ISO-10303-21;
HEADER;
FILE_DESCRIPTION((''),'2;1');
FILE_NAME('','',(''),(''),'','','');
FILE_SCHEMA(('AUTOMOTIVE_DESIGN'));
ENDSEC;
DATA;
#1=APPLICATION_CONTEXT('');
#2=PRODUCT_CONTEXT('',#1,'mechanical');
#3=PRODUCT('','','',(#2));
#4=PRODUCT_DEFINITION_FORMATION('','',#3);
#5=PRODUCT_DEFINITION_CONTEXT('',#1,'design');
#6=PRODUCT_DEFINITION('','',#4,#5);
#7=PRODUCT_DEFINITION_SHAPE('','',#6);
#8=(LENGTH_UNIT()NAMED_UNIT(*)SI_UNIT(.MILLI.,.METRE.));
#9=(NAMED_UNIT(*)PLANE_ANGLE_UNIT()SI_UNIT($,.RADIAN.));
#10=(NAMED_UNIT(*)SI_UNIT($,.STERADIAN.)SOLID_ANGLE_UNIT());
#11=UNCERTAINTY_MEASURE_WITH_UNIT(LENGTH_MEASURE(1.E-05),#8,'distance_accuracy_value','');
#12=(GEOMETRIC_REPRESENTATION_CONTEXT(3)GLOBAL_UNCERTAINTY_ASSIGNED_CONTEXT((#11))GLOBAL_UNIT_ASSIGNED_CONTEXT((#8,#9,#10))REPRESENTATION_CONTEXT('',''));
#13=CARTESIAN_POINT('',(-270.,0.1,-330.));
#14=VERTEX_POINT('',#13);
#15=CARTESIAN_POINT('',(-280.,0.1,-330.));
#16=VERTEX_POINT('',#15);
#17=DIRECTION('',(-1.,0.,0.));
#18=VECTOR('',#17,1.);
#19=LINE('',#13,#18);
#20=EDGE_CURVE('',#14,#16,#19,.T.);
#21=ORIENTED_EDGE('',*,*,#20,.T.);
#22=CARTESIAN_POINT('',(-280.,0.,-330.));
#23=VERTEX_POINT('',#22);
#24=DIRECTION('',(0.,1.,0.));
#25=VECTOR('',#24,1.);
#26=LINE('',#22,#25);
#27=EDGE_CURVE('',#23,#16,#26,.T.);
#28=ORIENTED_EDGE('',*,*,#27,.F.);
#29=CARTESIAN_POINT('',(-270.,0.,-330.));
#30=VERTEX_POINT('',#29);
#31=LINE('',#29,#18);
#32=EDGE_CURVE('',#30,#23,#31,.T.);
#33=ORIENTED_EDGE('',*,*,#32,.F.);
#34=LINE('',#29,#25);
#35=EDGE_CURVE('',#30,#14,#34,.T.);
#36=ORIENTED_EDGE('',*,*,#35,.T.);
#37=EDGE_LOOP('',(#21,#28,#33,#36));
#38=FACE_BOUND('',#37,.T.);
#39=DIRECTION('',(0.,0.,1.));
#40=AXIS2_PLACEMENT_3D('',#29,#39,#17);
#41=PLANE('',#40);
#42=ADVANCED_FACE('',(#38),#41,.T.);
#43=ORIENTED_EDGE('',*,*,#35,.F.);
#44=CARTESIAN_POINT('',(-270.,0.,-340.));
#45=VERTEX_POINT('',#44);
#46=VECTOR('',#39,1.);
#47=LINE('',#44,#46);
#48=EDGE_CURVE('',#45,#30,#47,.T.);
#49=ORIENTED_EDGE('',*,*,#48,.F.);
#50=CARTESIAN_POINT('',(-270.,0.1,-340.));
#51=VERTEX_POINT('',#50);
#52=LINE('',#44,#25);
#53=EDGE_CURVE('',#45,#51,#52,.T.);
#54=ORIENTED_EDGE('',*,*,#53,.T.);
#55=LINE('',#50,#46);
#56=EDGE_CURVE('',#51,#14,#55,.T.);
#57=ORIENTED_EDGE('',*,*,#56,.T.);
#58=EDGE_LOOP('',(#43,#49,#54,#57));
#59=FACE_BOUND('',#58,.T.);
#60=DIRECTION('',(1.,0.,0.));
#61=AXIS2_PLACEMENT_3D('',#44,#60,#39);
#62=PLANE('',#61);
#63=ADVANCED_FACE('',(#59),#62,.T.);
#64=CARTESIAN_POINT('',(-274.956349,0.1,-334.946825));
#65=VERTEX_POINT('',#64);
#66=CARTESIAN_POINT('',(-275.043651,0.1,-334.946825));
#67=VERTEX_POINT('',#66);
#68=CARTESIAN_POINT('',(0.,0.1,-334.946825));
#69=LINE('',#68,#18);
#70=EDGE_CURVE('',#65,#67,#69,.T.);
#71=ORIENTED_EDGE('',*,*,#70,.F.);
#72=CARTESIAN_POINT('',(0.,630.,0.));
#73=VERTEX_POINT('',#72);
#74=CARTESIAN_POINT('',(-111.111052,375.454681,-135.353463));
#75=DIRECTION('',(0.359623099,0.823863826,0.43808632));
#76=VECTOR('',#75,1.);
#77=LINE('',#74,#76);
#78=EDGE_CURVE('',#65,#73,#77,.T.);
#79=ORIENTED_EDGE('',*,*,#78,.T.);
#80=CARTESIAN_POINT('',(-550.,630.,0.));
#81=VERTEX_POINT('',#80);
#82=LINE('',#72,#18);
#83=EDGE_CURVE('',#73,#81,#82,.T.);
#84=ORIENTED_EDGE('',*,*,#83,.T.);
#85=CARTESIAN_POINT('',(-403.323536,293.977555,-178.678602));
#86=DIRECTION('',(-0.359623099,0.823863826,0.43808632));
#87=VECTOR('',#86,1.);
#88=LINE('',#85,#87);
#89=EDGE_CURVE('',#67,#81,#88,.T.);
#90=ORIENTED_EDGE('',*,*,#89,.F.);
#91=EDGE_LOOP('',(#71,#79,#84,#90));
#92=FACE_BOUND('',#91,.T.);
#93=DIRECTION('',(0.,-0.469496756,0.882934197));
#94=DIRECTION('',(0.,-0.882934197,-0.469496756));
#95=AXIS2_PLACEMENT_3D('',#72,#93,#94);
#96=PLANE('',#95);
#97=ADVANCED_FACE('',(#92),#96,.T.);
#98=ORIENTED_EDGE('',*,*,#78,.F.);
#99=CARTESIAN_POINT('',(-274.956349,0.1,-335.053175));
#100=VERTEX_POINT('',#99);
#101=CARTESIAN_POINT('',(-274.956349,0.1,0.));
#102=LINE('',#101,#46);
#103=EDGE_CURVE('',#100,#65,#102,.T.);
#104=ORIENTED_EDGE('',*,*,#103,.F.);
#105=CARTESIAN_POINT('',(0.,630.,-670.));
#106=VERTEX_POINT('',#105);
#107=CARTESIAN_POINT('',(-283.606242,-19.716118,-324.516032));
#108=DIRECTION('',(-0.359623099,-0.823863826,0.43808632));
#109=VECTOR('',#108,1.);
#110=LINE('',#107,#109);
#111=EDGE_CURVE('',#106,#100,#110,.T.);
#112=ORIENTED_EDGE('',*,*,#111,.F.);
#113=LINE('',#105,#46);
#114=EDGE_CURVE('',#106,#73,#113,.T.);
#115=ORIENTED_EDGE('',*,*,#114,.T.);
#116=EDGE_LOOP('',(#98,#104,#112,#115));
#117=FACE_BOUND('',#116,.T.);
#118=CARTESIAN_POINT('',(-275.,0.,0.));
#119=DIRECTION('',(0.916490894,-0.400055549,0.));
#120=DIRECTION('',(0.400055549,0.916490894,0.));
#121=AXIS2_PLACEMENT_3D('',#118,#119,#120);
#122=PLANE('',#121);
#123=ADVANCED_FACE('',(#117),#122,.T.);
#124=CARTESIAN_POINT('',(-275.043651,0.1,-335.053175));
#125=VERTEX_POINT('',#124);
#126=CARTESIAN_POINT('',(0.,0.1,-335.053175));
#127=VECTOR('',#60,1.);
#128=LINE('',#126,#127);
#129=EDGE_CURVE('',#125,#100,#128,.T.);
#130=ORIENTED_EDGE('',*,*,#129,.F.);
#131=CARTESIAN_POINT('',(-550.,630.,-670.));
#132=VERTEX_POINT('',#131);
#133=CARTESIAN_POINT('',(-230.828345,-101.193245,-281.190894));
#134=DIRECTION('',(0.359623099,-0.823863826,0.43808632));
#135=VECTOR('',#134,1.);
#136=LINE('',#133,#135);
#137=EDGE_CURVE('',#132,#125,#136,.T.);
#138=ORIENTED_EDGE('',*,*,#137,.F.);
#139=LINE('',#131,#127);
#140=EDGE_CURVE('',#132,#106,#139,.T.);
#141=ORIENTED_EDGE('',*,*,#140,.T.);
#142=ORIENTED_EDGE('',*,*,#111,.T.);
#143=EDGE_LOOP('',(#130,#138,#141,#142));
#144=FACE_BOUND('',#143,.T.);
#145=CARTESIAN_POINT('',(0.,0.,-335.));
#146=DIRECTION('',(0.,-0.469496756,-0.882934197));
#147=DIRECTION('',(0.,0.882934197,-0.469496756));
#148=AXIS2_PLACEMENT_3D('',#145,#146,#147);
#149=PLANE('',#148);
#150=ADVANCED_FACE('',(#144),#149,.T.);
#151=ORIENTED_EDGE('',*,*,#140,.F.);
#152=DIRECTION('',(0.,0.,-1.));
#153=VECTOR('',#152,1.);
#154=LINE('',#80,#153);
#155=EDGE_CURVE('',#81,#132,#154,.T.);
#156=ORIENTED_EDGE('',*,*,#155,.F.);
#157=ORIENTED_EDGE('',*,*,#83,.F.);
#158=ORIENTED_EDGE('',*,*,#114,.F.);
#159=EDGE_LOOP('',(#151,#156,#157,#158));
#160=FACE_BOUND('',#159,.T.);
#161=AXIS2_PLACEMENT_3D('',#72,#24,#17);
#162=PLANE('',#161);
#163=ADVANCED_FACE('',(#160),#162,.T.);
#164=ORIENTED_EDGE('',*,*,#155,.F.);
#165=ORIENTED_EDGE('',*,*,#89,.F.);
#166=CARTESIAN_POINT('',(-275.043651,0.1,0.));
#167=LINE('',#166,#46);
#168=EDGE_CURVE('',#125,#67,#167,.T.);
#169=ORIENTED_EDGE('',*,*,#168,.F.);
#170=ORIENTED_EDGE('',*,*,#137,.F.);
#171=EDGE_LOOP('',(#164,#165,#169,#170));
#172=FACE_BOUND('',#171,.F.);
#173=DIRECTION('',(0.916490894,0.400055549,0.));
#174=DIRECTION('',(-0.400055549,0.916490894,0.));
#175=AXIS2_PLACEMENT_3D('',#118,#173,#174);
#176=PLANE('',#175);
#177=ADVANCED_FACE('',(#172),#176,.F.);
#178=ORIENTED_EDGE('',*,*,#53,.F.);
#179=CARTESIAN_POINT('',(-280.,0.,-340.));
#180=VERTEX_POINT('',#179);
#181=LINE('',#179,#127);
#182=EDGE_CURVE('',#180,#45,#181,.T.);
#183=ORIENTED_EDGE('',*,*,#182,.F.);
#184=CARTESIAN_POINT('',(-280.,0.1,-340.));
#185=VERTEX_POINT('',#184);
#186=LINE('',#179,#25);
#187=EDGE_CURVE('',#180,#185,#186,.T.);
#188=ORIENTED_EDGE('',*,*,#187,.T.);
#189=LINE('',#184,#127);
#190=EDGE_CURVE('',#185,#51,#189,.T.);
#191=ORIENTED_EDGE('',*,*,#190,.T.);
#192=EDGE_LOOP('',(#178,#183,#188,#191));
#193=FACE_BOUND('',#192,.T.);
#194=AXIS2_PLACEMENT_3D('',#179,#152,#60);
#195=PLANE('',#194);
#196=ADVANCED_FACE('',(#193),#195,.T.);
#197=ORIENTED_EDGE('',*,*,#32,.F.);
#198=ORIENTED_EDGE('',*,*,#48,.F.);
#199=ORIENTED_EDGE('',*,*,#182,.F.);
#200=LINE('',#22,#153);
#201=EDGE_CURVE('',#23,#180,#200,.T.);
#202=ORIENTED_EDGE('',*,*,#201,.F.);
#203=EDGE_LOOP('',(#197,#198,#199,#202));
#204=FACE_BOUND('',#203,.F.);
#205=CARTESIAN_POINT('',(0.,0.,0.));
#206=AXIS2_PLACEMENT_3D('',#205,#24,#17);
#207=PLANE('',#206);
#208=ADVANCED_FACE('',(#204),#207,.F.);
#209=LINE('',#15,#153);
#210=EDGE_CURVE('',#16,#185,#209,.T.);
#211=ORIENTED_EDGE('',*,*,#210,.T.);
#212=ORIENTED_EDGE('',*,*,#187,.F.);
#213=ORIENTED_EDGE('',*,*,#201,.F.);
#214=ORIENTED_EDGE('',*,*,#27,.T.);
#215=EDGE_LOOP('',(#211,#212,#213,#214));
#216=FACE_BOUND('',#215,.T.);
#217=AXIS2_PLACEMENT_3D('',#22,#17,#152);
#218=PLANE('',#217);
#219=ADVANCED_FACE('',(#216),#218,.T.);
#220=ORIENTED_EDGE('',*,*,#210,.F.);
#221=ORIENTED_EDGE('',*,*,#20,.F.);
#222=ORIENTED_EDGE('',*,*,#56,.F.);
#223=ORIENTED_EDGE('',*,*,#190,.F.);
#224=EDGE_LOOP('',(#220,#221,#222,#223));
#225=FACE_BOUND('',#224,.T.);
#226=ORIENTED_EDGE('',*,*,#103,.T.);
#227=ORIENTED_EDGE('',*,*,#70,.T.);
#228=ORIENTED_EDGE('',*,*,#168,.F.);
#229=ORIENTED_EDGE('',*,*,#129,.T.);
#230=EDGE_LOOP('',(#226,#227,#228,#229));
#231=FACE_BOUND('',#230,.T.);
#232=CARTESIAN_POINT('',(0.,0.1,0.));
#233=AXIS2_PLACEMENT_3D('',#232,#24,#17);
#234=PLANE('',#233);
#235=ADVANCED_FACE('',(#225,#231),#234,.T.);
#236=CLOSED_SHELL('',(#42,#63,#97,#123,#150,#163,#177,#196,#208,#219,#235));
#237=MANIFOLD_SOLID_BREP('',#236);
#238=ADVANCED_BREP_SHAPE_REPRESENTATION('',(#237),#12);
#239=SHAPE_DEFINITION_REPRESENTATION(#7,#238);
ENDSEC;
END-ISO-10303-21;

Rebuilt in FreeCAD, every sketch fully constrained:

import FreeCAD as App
import Part
import Sketcher
from FreeCAD import Vector
Q = App.Units.Quantity

doc = App.newDocument("Part")
params = doc.addObject("Spreadsheet::Sheet", "Params")
for row, (alias, value) in enumerate([
    ("sketch1_width", "550 mm"),
    ("sketch1_height", "670 mm"),
    ("pad1_length", "630 mm"),
    ("sketch2_width", "630 mm"),
    ("sketch2_height", "335 mm"),
    ("sketch3_width", "630 mm"),
    ("sketch3_height", "335 mm"),
    ("sketch4_width", "275 mm"),
    ("sketch4_height", "630 mm"),
    ("sketch5_width", "275 mm"),
    ("sketch5_height", "630 mm"),
    ("sketch6_width", "10 mm"),
    ("pad2_length", "0.1 mm"),
], start=1):
    params.set(f"A{row}", alias)
    params.set(f"B{row}", "=" + value)
    params.setAlias(f"B{row}", alias)

body = doc.addObject("PartDesign::Body", "Body")

sketch1 = doc.addObject("Sketcher::SketchObject", "Sketch")
body.addObject(sketch1)
sketch1.AttachmentSupport = (doc.XZ_Plane, [""])
sketch1.MapMode = "FlatFace"
sketch1.addGeometry(Part.LineSegment(Vector(-550, 0, 0), Vector(0, 0, 0)), False)
sketch1.addGeometry(Part.LineSegment(Vector(0, 0, 0), Vector(0, -670, 0)), False)
sketch1.addGeometry(Part.LineSegment(Vector(0, -670, 0), Vector(-550, -670, 0)), False)
sketch1.addGeometry(Part.LineSegment(Vector(-550, -670, 0), Vector(-550, 0, 0)), False)
sketch1.addConstraint(Sketcher.Constraint("Coincident", 0, 2, 1, 1))
sketch1.addConstraint(Sketcher.Constraint("Coincident", 1, 2, 2, 1))
sketch1.addConstraint(Sketcher.Constraint("Coincident", 2, 2, 3, 1))
sketch1.addConstraint(Sketcher.Constraint("Coincident", 3, 2, 0, 1))
sketch1.addConstraint(Sketcher.Constraint("Horizontal", 0))
sketch1.addConstraint(Sketcher.Constraint("Vertical", 1))
sketch1.addConstraint(Sketcher.Constraint("Horizontal", 2))
sketch1.addConstraint(Sketcher.Constraint("Vertical", 3))
sketch1.addConstraint(Sketcher.Constraint("Coincident", 0, 2, -1, 1))
sketch1.addConstraint(Sketcher.Constraint("DistanceX", 0, 1, 0, 2, Q("550 mm")))
sketch1.addConstraint(Sketcher.Constraint("DistanceY", 1, 2, 1, 1, Q("670 mm")))
sketch1.setExpression("Constraints[9]", "Params.sketch1_width")
sketch1.setExpression("Constraints[10]", "Params.sketch1_height")
pad1 = doc.addObject("PartDesign::Pad", "Pad")
body.addObject(pad1)
pad1.Profile = sketch1
pad1.setExpression("Length", "Params.pad1_length")
pad1.Reversed = True

sketch2 = doc.addObject("Sketcher::SketchObject", "Sketch001")
body.addObject(sketch2)
sketch2.AttachmentSupport = (doc.YZ_Plane, [""])
sketch2.MapMode = "FlatFace"
sketch2.addGeometry(Part.LineSegment(Vector(0, -335, 0), Vector(630, 0, 0)), False)
sketch2.addGeometry(Part.LineSegment(Vector(630, 0, 0), Vector(0, 0, 0)), False)
sketch2.addGeometry(Part.LineSegment(Vector(0, 0, 0), Vector(0, -335, 0)), False)
sketch2.addConstraint(Sketcher.Constraint("Coincident", 0, 2, 1, 1))
sketch2.addConstraint(Sketcher.Constraint("Coincident", 1, 2, 2, 1))
sketch2.addConstraint(Sketcher.Constraint("Coincident", 2, 2, 0, 1))
sketch2.addConstraint(Sketcher.Constraint("Horizontal", 1))
sketch2.addConstraint(Sketcher.Constraint("Vertical", 2))
sketch2.addConstraint(Sketcher.Constraint("Coincident", 1, 2, -1, 1))
sketch2.addConstraint(Sketcher.Constraint("DistanceX", 1, 2, 1, 1, Q("630 mm")))
sketch2.addConstraint(Sketcher.Constraint("DistanceY", 2, 2, 2, 1, Q("335 mm")))
sketch2.setExpression("Constraints[6]", "Params.sketch2_width")
sketch2.setExpression("Constraints[7]", "Params.sketch2_height")
pocket1 = doc.addObject("PartDesign::Pocket", "Pocket")
body.addObject(pocket1)
pocket1.Profile = sketch2
pocket1.Type = "ThroughAll"

sketch3 = doc.addObject("Sketcher::SketchObject", "Sketch002")
body.addObject(sketch3)
sketch3.AttachmentSupport = (doc.YZ_Plane, [""])
sketch3.MapMode = "FlatFace"
sketch3.addGeometry(Part.LineSegment(Vector(630, -670, 0), Vector(0, -335, 0)), False)
sketch3.addGeometry(Part.LineSegment(Vector(0, -335, 0), Vector(0, -670, 0)), False)
sketch3.addGeometry(Part.LineSegment(Vector(0, -670, 0), Vector(630, -670, 0)), False)
sketch3.addConstraint(Sketcher.Constraint("Coincident", 0, 2, 1, 1))
sketch3.addConstraint(Sketcher.Constraint("Coincident", 1, 2, 2, 1))
sketch3.addConstraint(Sketcher.Constraint("Coincident", 2, 2, 0, 1))
sketch3.addConstraint(Sketcher.Constraint("Vertical", 1))
sketch3.addConstraint(Sketcher.Constraint("Horizontal", 2))
sketch3.addConstraint(Sketcher.Constraint("PointOnObject", 0, 2, -2))
sketch3.addConstraint(Sketcher.Constraint("DistanceX", 2, 1, 2, 2, Q("630 mm")))
sketch3.addConstraint(Sketcher.Constraint("DistanceY", 1, 2, 1, 1, Q("335 mm")))
sketch3.addConstraint(Sketcher.Constraint("DistanceY", 0, 2, -1, 1, Q("335 mm")))
sketch3.setExpression("Constraints[6]", "Params.sketch3_width")
sketch3.setExpression("Constraints[7]", "Params.sketch3_height")
pocket2 = doc.addObject("PartDesign::Pocket", "Pocket001")
body.addObject(pocket2)
pocket2.Profile = sketch3
pocket2.Type = "ThroughAll"

sketch4 = doc.addObject("Sketcher::SketchObject", "Sketch003")
body.addObject(sketch4)
sketch4.AttachmentSupport = (doc.XY_Plane, [""])
sketch4.MapMode = "FlatFace"
sketch4.addGeometry(Part.LineSegment(Vector(-550, 630, 0), Vector(-550, 0, 0)), False)
sketch4.addGeometry(Part.LineSegment(Vector(-550, 0, 0), Vector(-275, 0, 0)), False)
sketch4.addGeometry(Part.LineSegment(Vector(-275, 0, 0), Vector(-550, 630, 0)), False)
sketch4.addConstraint(Sketcher.Constraint("Coincident", 0, 2, 1, 1))
sketch4.addConstraint(Sketcher.Constraint("Coincident", 1, 2, 2, 1))
sketch4.addConstraint(Sketcher.Constraint("Coincident", 2, 2, 0, 1))
sketch4.addConstraint(Sketcher.Constraint("Vertical", 0))
sketch4.addConstraint(Sketcher.Constraint("Horizontal", 1))
sketch4.addConstraint(Sketcher.Constraint("PointOnObject", 0, 2, -1))
sketch4.addConstraint(Sketcher.Constraint("DistanceX", 1, 1, 1, 2, Q("275 mm")))
sketch4.addConstraint(Sketcher.Constraint("DistanceX", 1, 2, -1, 1, Q("275 mm")))
sketch4.addConstraint(Sketcher.Constraint("DistanceY", 0, 2, 0, 1, Q("630 mm")))
sketch4.setExpression("Constraints[6]", "Params.sketch4_width")
sketch4.setExpression("Constraints[8]", "Params.sketch4_height")
pocket3 = doc.addObject("PartDesign::Pocket", "Pocket002")
body.addObject(pocket3)
pocket3.Profile = sketch4
pocket3.Type = "ThroughAll"

sketch5 = doc.addObject("Sketcher::SketchObject", "Sketch004")
body.addObject(sketch5)
sketch5.AttachmentSupport = (doc.XY_Plane, [""])
sketch5.MapMode = "FlatFace"
sketch5.addGeometry(Part.LineSegment(Vector(-275, 0, 0), Vector(0, 0, 0)), False)
sketch5.addGeometry(Part.LineSegment(Vector(0, 0, 0), Vector(0, 630, 0)), False)
sketch5.addGeometry(Part.LineSegment(Vector(0, 630, 0), Vector(-275, 0, 0)), False)
sketch5.addConstraint(Sketcher.Constraint("Coincident", 0, 2, 1, 1))
sketch5.addConstraint(Sketcher.Constraint("Coincident", 1, 2, 2, 1))
sketch5.addConstraint(Sketcher.Constraint("Coincident", 2, 2, 0, 1))
sketch5.addConstraint(Sketcher.Constraint("Horizontal", 0))
sketch5.addConstraint(Sketcher.Constraint("Vertical", 1))
sketch5.addConstraint(Sketcher.Constraint("Coincident", 0, 2, -1, 1))
sketch5.addConstraint(Sketcher.Constraint("DistanceX", 0, 1, 0, 2, Q("275 mm")))
sketch5.addConstraint(Sketcher.Constraint("DistanceY", 1, 1, 1, 2, Q("630 mm")))
sketch5.setExpression("Constraints[6]", "Params.sketch5_width")
sketch5.setExpression("Constraints[7]", "Params.sketch5_height")
pocket4 = doc.addObject("PartDesign::Pocket", "Pocket003")
body.addObject(pocket4)
pocket4.Profile = sketch5
pocket4.Type = "ThroughAll"

sketch6 = doc.addObject("Sketcher::SketchObject", "Sketch005")
body.addObject(sketch6)
sketch6.AttachmentSupport = (doc.XZ_Plane, [""])
sketch6.MapMode = "FlatFace"
sketch6.addGeometry(Part.LineSegment(Vector(-280, -330, 0), Vector(-270, -330, 0)), False)
sketch6.addGeometry(Part.LineSegment(Vector(-270, -330, 0), Vector(-270, -340, 0)), False)
sketch6.addGeometry(Part.LineSegment(Vector(-270, -340, 0), Vector(-280, -340, 0)), False)
sketch6.addGeometry(Part.LineSegment(Vector(-280, -340, 0), Vector(-280, -330, 0)), False)
sketch6.addConstraint(Sketcher.Constraint("Coincident", 0, 2, 1, 1))
sketch6.addConstraint(Sketcher.Constraint("Coincident", 1, 2, 2, 1))
sketch6.addConstraint(Sketcher.Constraint("Coincident", 2, 2, 3, 1))
sketch6.addConstraint(Sketcher.Constraint("Coincident", 3, 2, 0, 1))
sketch6.addConstraint(Sketcher.Constraint("Horizontal", 0))
sketch6.addConstraint(Sketcher.Constraint("Vertical", 1))
sketch6.addConstraint(Sketcher.Constraint("Horizontal", 2))
sketch6.addConstraint(Sketcher.Constraint("Vertical", 3))
sketch6.addConstraint(Sketcher.Constraint("Equal", 2, 1))
sketch6.addConstraint(Sketcher.Constraint("DistanceX", 0, 1, 0, 2, Q("10 mm")))
sketch6.addConstraint(Sketcher.Constraint("DistanceX", 0, 2, -1, 1, Q("270 mm")))
sketch6.addConstraint(Sketcher.Constraint("DistanceY", 0, 2, -1, 1, Q("330 mm")))
sketch6.setExpression("Constraints[9]", "Params.sketch6_width")
pad2 = doc.addObject("PartDesign::Pad", "Pad001")
body.addObject(pad2)
pad2.Profile = sketch6
pad2.setExpression("Length", "Params.pad2_length")
pad2.Reversed = True

doc.recompute()
